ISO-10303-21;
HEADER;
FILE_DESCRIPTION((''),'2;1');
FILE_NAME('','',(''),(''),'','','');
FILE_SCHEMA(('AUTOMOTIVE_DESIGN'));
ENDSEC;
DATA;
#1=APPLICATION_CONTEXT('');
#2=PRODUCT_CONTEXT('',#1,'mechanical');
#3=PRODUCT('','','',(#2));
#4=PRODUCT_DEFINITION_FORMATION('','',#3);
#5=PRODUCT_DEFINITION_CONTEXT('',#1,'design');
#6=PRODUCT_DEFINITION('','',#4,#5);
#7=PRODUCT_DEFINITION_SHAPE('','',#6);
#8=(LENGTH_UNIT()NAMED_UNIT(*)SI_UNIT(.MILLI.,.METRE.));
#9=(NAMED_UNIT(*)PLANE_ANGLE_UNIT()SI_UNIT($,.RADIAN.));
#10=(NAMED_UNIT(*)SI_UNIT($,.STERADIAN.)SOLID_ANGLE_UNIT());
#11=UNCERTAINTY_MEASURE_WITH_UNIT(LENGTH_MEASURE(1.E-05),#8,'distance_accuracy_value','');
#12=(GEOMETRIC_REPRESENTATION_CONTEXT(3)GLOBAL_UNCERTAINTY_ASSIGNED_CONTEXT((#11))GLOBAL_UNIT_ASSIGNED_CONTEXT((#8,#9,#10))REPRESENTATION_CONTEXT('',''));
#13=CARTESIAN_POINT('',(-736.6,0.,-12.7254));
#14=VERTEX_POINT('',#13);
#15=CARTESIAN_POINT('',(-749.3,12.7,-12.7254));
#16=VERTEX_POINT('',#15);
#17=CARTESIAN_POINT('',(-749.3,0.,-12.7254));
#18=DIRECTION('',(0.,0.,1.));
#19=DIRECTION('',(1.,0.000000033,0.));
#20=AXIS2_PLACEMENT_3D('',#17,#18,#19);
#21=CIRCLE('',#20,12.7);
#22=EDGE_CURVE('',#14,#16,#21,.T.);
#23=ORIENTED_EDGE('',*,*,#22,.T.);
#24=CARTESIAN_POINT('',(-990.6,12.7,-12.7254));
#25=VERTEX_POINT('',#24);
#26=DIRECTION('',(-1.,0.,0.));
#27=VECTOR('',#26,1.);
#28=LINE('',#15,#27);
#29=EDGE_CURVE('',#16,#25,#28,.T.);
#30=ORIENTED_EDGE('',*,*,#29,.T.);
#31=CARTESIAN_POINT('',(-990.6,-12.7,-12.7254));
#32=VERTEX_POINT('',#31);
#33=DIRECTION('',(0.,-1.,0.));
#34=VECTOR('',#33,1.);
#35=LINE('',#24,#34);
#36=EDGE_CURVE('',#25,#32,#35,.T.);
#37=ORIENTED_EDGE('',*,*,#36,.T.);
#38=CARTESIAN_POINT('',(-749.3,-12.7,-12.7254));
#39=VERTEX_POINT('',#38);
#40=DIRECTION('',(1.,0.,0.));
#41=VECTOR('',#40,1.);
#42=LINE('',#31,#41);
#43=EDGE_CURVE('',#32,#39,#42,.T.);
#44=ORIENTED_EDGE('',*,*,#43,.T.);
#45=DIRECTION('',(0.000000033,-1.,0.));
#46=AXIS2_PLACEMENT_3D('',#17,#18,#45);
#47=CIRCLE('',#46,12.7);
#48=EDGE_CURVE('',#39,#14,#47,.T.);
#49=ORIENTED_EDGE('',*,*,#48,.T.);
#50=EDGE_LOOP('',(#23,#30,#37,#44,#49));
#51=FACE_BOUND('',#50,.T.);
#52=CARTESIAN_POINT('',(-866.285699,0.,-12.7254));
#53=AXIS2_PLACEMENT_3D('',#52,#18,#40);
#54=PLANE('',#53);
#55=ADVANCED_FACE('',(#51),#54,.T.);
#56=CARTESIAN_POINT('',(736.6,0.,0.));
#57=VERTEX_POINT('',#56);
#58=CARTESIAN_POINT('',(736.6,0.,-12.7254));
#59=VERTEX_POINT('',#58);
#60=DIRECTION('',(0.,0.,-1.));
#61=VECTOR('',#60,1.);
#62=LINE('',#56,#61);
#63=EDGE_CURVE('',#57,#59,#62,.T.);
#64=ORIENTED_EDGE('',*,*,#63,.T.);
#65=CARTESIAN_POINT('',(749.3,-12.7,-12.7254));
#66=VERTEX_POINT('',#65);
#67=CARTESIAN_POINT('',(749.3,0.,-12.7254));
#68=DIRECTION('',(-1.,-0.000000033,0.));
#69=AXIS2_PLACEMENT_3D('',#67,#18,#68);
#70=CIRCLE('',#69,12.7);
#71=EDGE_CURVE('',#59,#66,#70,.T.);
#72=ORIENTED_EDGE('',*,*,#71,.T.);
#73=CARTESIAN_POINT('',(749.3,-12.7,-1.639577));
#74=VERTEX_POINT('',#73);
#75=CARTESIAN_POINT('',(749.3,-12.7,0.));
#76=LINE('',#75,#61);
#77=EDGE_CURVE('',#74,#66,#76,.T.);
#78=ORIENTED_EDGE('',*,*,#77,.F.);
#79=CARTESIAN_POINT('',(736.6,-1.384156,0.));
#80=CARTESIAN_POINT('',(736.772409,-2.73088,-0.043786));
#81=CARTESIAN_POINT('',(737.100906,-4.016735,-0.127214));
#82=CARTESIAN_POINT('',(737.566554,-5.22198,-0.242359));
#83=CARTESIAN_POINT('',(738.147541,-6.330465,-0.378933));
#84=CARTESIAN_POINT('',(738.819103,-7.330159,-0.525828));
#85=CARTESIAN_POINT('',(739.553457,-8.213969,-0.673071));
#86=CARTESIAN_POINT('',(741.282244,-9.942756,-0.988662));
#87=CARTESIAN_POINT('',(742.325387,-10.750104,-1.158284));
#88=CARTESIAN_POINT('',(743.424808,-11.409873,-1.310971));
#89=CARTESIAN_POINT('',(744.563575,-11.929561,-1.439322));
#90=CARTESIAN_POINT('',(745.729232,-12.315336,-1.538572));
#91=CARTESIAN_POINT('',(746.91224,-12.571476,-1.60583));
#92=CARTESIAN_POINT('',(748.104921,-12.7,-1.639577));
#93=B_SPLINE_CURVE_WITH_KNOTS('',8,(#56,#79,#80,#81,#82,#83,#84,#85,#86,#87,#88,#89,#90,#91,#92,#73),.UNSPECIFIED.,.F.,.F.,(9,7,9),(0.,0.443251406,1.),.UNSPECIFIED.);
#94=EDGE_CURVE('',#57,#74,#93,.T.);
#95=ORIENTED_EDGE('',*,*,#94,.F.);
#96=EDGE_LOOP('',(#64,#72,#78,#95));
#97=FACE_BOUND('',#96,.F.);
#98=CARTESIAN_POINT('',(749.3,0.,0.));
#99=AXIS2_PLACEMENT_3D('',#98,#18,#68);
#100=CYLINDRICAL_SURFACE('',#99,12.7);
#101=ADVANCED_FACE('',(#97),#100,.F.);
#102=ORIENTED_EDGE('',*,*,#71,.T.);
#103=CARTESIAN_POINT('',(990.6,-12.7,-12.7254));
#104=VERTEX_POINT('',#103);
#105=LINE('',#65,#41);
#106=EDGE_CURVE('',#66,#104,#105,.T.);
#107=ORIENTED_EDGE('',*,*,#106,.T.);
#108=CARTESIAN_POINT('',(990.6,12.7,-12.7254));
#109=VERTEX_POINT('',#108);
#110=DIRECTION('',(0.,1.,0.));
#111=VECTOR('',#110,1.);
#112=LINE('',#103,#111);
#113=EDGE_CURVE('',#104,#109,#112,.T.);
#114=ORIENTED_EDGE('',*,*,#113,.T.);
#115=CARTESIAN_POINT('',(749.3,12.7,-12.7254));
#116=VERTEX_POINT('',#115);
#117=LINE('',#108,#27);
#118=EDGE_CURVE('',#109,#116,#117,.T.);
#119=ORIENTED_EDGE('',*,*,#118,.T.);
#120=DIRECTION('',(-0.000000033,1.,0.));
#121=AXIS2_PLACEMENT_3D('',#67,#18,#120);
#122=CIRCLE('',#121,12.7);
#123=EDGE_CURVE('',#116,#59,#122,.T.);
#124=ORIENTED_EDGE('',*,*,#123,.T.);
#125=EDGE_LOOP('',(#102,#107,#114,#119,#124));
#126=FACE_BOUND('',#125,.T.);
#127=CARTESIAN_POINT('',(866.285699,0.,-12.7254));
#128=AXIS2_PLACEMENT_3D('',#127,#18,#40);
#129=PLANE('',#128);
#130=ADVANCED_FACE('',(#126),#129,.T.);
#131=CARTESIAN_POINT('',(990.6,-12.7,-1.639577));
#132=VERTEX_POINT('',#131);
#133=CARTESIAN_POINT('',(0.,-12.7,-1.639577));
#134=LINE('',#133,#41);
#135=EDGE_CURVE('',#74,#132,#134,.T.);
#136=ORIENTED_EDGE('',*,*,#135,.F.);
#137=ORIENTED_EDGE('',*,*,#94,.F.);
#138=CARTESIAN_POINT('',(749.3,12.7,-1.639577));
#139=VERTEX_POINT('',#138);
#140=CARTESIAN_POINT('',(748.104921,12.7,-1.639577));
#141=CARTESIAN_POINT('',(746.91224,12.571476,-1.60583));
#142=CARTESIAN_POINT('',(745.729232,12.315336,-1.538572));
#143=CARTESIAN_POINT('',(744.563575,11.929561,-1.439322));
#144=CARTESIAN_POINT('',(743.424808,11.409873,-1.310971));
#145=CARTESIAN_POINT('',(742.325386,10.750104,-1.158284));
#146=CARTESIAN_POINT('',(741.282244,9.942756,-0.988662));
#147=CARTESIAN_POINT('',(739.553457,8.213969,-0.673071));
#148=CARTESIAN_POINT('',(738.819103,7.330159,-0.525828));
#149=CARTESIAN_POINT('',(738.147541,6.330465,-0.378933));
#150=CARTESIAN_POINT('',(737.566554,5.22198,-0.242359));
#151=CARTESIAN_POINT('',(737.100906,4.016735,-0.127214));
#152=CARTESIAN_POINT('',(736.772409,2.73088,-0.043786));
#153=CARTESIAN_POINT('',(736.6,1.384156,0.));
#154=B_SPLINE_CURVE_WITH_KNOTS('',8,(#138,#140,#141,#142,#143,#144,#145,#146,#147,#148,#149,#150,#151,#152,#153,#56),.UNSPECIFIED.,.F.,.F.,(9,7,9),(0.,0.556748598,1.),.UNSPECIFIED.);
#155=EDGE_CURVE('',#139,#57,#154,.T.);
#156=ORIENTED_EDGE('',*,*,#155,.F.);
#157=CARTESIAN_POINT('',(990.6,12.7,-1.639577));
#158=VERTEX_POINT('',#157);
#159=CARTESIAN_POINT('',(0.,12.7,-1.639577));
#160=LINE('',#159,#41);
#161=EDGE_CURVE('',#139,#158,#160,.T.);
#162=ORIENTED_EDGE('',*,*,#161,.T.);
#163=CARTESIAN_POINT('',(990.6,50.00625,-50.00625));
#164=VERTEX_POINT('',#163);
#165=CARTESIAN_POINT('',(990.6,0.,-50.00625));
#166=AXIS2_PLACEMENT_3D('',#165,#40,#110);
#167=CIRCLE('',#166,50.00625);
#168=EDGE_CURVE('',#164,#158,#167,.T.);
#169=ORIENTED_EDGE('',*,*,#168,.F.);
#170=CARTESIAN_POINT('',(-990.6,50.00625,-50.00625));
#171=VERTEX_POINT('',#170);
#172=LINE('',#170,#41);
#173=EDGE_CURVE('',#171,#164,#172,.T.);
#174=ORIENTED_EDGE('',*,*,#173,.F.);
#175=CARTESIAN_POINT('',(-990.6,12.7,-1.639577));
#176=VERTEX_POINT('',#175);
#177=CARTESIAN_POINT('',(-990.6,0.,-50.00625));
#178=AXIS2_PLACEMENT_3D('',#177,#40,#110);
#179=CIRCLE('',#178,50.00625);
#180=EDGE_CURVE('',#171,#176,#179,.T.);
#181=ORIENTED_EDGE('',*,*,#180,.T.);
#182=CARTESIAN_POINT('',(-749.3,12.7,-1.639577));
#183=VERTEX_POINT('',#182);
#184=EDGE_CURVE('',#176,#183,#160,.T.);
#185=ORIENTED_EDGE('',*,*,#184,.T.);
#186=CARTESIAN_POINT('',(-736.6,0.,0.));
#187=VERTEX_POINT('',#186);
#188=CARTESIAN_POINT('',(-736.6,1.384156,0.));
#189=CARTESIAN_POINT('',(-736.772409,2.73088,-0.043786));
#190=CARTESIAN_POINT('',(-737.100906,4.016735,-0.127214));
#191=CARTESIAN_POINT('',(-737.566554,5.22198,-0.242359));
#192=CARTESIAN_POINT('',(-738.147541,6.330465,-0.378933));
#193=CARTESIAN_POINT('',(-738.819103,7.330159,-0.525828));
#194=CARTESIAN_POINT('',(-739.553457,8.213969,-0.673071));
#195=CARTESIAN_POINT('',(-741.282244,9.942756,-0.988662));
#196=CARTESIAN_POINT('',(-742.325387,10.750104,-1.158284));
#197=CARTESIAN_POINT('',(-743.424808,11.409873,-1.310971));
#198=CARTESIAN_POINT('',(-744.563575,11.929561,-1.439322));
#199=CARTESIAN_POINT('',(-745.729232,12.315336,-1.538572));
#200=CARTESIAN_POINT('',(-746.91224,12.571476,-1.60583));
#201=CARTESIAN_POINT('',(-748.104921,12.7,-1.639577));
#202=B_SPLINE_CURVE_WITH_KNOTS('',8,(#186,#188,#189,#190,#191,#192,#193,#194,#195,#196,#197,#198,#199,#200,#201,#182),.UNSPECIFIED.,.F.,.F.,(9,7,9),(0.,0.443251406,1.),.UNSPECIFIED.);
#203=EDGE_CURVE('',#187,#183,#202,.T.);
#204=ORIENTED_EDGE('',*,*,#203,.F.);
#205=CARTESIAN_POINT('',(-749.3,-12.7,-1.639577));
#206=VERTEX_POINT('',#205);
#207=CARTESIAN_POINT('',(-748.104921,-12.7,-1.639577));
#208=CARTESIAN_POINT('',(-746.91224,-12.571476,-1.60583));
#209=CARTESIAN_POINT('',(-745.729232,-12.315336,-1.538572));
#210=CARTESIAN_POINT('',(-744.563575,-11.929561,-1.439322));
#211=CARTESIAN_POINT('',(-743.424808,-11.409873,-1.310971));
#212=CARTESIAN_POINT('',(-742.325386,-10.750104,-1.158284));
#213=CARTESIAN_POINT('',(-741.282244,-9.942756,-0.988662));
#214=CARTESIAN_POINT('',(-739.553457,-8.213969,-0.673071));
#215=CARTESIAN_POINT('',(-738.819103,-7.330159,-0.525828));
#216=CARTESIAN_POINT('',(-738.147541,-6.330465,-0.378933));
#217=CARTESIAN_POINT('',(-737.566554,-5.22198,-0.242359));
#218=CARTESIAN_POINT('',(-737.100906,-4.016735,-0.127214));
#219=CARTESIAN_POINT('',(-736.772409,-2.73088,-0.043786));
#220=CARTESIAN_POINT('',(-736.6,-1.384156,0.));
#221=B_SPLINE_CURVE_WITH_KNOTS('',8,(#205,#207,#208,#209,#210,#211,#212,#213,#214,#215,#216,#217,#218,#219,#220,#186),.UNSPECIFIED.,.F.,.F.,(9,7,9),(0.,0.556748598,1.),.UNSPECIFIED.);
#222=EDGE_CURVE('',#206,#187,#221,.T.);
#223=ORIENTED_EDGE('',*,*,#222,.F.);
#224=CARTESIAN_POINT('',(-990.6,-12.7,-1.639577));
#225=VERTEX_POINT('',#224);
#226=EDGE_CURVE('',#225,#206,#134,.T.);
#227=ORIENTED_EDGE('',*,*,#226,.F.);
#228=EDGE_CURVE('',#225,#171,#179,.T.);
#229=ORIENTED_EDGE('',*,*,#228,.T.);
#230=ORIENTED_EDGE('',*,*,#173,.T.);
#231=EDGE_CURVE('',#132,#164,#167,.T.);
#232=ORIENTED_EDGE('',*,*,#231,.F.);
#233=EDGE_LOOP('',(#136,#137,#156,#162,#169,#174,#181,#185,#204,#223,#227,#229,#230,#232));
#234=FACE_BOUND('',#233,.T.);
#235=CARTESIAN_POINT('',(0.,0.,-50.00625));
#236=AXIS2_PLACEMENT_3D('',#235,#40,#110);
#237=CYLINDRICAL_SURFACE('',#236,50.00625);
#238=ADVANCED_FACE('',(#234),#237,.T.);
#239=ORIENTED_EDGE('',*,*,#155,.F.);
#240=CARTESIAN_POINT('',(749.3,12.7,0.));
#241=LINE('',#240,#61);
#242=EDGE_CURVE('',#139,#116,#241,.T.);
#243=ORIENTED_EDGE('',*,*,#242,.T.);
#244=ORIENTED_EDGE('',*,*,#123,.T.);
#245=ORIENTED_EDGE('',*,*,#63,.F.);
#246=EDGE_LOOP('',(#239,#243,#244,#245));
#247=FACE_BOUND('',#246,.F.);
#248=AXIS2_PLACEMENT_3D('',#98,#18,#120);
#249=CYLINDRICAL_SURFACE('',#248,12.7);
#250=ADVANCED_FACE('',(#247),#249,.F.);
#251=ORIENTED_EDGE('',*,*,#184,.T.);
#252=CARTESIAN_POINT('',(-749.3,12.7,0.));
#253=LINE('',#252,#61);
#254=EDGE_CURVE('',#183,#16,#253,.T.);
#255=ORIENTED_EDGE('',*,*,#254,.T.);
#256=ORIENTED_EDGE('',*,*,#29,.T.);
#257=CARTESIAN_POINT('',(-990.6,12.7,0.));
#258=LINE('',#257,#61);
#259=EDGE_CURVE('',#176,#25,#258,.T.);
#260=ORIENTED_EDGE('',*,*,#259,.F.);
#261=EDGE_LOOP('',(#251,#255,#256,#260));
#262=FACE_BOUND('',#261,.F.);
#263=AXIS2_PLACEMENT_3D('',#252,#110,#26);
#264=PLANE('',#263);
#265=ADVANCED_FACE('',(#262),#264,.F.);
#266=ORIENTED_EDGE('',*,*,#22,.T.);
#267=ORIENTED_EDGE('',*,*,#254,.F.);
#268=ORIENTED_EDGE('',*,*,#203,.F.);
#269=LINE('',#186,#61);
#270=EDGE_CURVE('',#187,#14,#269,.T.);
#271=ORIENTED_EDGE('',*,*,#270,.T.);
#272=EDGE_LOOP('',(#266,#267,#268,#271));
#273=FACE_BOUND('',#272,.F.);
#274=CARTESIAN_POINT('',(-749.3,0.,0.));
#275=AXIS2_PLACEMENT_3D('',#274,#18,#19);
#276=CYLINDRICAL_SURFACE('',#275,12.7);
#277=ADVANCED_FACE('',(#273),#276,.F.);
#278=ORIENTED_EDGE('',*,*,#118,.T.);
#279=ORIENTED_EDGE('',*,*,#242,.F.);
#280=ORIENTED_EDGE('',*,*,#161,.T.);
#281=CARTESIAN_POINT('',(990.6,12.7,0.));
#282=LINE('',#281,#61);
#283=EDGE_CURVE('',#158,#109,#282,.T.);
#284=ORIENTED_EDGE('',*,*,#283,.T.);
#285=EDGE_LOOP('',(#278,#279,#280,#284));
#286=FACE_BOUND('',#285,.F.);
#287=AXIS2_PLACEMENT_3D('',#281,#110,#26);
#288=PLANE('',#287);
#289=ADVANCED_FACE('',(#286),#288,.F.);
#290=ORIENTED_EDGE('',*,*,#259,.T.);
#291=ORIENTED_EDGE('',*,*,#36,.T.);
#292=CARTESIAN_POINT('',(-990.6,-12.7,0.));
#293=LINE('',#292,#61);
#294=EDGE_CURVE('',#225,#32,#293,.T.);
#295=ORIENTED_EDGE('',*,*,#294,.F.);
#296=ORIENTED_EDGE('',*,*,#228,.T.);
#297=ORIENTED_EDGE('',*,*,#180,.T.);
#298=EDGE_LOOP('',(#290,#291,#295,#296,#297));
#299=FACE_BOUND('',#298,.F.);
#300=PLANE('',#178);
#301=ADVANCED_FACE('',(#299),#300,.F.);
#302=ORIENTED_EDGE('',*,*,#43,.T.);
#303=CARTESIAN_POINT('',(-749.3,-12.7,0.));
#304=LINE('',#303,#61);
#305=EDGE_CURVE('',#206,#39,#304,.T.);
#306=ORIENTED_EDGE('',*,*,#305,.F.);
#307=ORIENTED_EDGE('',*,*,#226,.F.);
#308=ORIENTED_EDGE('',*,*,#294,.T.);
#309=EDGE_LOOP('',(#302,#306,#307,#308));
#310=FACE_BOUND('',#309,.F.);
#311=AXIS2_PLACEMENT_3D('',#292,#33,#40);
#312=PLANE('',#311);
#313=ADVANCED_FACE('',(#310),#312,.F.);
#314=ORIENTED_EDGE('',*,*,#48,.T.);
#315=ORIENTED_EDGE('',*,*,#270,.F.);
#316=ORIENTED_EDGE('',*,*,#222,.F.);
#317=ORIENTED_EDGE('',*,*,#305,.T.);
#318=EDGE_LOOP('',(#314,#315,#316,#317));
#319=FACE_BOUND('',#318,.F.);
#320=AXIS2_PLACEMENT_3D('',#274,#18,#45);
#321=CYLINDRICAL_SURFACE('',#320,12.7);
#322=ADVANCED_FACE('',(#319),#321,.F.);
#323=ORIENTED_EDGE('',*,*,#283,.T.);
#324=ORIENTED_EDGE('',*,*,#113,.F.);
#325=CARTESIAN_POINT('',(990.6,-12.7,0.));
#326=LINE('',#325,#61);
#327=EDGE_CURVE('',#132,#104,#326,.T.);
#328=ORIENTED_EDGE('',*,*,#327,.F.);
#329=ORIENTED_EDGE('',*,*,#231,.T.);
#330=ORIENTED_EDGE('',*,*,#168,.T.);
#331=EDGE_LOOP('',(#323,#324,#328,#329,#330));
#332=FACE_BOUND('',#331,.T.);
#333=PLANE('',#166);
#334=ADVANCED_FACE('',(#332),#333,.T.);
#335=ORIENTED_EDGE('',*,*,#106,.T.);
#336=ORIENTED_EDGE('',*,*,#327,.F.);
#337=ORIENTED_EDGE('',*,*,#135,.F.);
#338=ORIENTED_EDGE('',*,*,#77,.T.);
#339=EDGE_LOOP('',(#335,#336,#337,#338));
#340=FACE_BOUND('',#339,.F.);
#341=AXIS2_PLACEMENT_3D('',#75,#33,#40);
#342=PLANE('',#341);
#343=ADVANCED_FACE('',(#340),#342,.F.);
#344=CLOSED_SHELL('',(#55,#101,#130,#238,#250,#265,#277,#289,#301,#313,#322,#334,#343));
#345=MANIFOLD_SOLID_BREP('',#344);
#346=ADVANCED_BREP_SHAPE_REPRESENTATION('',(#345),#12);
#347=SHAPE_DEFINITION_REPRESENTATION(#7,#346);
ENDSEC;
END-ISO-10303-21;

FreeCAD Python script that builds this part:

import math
import FreeCAD as App
import Part
import Sketcher
from FreeCAD import Vector
Q = App.Units.Quantity

doc = App.newDocument("Part")
body = doc.addObject("PartDesign::Body", "Body")

sketch1 = body.newObject("Sketcher::SketchObject", "Sketch")
sketch1.AttachmentSupport = (doc.getObject("YZ_Plane"), [""])
sketch1.MapMode = "FlatFace"
sketch1.addGeometry(Part.Circle(Vector(0, -50, 0), Vector(0, 0, 1), 50), False)
sketch1.addConstraint([
    Sketcher.Constraint("PointOnObject", 0, 3, -2),
    Sketcher.Constraint("Diameter", 0, Q("3.9375 in")),
    Sketcher.Constraint("DistanceY", 0, 3, -1, 1, Q("1.96875 in")),
])
pad1 = body.newObject("PartDesign::Pad", "Pad")
pad1.Profile = sketch1
pad1.Length = Q("78 in")
pad1.Midplane = True

sketch2 = body.newObject("Sketcher::SketchObject", "Sketch001")
sketch2.AttachmentSupport = (doc.getObject("XY_Plane"), [""])
sketch2.MapMode = "FlatFace"
sketch2.addGeometry([
    Part.LineSegment(Vector(-749, 13, 0), Vector(-991, 13, 0)),
    Part.LineSegment(Vector(-991, 13, 0), Vector(-991, -13, 0)),
    Part.LineSegment(Vector(-991, -13, 0), Vector(-749, -13, 0)),
    Part.ArcOfCircle(Part.Circle(Vector(-749, 0, 0), Vector(0, 0, 1), 13), math.radians(-90), math.radians(0)),
    Part.ArcOfCircle(Part.Circle(Vector(-749, 0, 0), Vector(0, 0, 1), 13), math.radians(0), math.radians(90)),
    Part.LineSegment(Vector(991, -13, 0), Vector(991, 13, 0)),
    Part.LineSegment(Vector(991, 13, 0), Vector(749, 13, 0)),
    Part.ArcOfCircle(Part.Circle(Vector(749, 0, 0), Vector(0, 0, 1), 13), math.radians(90), math.radians(180)),
    Part.ArcOfCircle(Part.Circle(Vector(749, 0, 0), Vector(0, 0, 1), 13), math.radians(-180), math.radians(-90)),
    Part.LineSegment(Vector(749, -13, 0), Vector(991, -13, 0)),
], False)
sketch2.addConstraint([
    Sketcher.Constraint("Coincident", 0, 2, 1, 1),
    Sketcher.Constraint("Coincident", 1, 2, 2, 1),
    Sketcher.Constraint("Tangent", 2, 2, 3, 1),
    Sketcher.Constraint("Tangent", 3, 2, 4, 1),
    Sketcher.Constraint("Tangent", 4, 2, 0, 1),
    Sketcher.Constraint("Coincident", 5, 2, 6, 1),
    Sketcher.Constraint("Tangent", 6, 2, 7, 1),
    Sketcher.Constraint("Tangent", 7, 2, 8, 1),
    Sketcher.Constraint("Tangent", 8, 2, 9, 1),
    Sketcher.Constraint("Coincident", 9, 2, 5, 1),
    Sketcher.Constraint("Horizontal", 0),
    Sketcher.Constraint("Vertical", 1),
    Sketcher.Constraint("Horizontal", 2),
    Sketcher.Constraint("Vertical", 5),
    Sketcher.Constraint("Horizontal", 6),
    Sketcher.Constraint("Horizontal", 9),
    Sketcher.Constraint("Equal", 3, 4),
    Sketcher.Constraint("Equal", 4, 7),
    Sketcher.Constraint("Equal", 7, 8),
    Sketcher.Constraint("Symmetric", 3, 3, 7, 3, -1, 1),
    Sketcher.Constraint("Symmetric", 0, 2, 5, 2, -2),
    Sketcher.Constraint("PointOnObject", 3, 2, -1),
    Sketcher.Constraint("PointOnObject", 7, 2, -1),
    Sketcher.Constraint("Radius", 3, Q("0.5 in")),
    Sketcher.Constraint("DistanceX", 0, 2, 0, 1, Q("9.5 in")),
    Sketcher.Constraint("DistanceX", 0, 2, -1, 1, Q("39 in")),
])
pocket1 = body.newObject("PartDesign::Pocket", "Pocket")
pocket1.Profile = sketch2
pocket1.Length = Q("0.501 in")

doc.recompute()
